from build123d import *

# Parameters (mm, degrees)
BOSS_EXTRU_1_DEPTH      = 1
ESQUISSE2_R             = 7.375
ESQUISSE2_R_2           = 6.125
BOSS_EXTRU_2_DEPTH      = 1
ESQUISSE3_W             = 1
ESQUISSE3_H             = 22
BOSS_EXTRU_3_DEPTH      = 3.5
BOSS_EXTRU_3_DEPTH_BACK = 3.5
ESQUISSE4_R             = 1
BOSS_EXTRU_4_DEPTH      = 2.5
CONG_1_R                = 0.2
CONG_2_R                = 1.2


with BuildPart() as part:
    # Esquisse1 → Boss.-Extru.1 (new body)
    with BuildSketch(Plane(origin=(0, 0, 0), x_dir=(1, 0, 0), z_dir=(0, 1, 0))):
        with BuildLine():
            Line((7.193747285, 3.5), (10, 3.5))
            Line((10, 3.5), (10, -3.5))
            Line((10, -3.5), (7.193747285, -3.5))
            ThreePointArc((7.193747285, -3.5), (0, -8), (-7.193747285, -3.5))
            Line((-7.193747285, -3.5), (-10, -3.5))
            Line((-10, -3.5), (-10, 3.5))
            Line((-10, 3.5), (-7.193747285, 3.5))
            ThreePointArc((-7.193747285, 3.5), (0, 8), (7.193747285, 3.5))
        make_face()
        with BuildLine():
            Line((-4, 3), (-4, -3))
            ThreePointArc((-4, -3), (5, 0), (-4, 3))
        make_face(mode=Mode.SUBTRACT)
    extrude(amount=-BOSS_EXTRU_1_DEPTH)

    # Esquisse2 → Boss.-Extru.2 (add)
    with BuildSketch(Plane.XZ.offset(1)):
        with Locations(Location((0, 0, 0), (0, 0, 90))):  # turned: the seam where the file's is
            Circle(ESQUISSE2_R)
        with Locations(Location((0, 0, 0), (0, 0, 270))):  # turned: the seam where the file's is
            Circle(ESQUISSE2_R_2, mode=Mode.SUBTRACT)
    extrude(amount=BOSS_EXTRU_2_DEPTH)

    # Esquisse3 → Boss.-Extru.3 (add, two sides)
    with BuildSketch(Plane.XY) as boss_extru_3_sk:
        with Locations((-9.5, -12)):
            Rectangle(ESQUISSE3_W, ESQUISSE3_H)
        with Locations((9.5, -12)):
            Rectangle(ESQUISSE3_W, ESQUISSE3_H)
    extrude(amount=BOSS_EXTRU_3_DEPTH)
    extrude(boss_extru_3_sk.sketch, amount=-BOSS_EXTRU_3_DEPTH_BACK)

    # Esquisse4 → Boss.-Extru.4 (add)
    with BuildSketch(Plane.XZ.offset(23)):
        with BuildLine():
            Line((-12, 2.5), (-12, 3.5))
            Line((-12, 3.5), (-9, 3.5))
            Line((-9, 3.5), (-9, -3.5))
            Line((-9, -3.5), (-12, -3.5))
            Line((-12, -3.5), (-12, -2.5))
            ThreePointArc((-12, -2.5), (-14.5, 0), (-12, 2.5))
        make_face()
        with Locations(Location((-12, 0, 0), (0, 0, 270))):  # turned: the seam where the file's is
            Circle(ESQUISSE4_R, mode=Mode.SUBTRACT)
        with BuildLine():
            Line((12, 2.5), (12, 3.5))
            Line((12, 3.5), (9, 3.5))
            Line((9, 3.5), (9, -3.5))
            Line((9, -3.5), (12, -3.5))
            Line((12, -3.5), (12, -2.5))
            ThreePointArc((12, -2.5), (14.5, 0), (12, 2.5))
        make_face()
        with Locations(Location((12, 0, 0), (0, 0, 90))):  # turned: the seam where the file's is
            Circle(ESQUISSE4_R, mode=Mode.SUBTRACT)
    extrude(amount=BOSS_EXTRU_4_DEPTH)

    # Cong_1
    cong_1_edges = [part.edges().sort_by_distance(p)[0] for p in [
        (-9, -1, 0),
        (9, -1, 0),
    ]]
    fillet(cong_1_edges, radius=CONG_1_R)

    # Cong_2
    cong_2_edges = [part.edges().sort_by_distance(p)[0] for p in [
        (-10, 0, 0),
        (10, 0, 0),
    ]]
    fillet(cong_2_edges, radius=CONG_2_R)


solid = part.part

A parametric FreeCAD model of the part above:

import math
import FreeCAD as App
import Part
import Sketcher

V = App.Vector
Q = App.Units.Quantity


def edges_at(feature, points):
    """Names of the edges that pass closest to the given points."""
    edges = feature.Shape.Edges
    near = lambda p: min(range(len(edges)), key=lambda i: edges[i].distToShape(Part.Vertex(*p))[0])
    return sorted({f"Edge{near(p) + 1}" for p in points})

doc = App.newDocument("Part")
params = doc.addObject("Spreadsheet::Sheet", "Params")
for row, (alias, value) in enumerate([
    ("sketch1_radius", "8 mm"),
    ("sketch1_radius2", "5 mm"),
    ("sketch1_height", "7 mm"),
    ("sketch1_height2", "6 mm"),
    ("pad1_length", "1 mm"),
    ("sketch2_diameter", "14.75 mm"),
    ("sketch2_diameter2", "12.25 mm"),
    ("pad2_length", "1 mm"),
    ("sketch3_width", "1 mm"),
    ("sketch3_height", "22 mm"),
    ("pad3_length", "3.5 mm"),
    ("pad3_length2", "3.5 mm"),
    ("sketch4_diameter", "2 mm"),
    ("sketch4_radius", "2.5 mm"),
    ("sketch4_width", "3 mm"),
    ("sketch4_height", "1 mm"),
    ("pad4_length", "2.5 mm"),
    ("fillet_radius", "0.2 mm"),
    ("fillet2_radius", "1.2 mm"),
], start=1):
    params.set(f"A{row}", alias)
    params.set(f"B{row}", "=" + value)
    params.setAlias(f"B{row}", alias)

body = doc.addObject("PartDesign::Body", "Body")

# Sketch on XZ plane
sketch1 = doc.addObject("Sketcher::SketchObject", "Sketch")
body.addObject(sketch1)
sketch1.AttachmentSupport = (doc.XZ_Plane, [""])
sketch1.MapMode = "FlatFace"
sketch1.addGeometry(Part.LineSegment(V(10, -3.5, 0), V(7.2, -3.5, 0)), False)
sketch1.addGeometry(Part.ArcOfCircle(Part.Circle(V(0, 0, 0), V(0, 0, 1), 8), math.radians(-154), math.radians(-26)), False)
sketch1.addGeometry(Part.LineSegment(V(-7.2, -3.5, 0), V(-10, -3.5, 0)), False)
sketch1.addGeometry(Part.LineSegment(V(-10, -3.5, 0), V(-10, 3.5, 0)), False)
sketch1.addGeometry(Part.LineSegment(V(-10, 3.5, 0), V(-7.2, 3.5, 0)), False)
sketch1.addGeometry(Part.ArcOfCircle(Part.Circle(V(0, 0, 0), V(0, 0, 1), 8), math.radians(26), math.radians(154)), False)
sketch1.addGeometry(Part.LineSegment(V(7.2, 3.5, 0), V(10, 3.5, 0)), False)
sketch1.addGeometry(Part.LineSegment(V(10, 3.5, 0), V(10, -3.5, 0)), False)
sketch1.addGeometry(Part.ArcOfCircle(Part.Circle(V(0, 0, 0), V(0, 0, 1), 5), math.radians(-143), math.radians(143)), False)
sketch1.addGeometry(Part.LineSegment(V(-4, 3, 0), V(-4, -3, 0)), False)
sketch1.addConstraint(Sketcher.Constraint("Coincident", 0, 2, 1, 2))
sketch1.addConstraint(Sketcher.Constraint("Coincident", 1, 1, 2, 1))
sketch1.addConstraint(Sketcher.Constraint("Coincident", 2, 2, 3, 1))
sketch1.addConstraint(Sketcher.Constraint("Coincident", 3, 2, 4, 1))
sketch1.addConstraint(Sketcher.Constraint("Coincident", 4, 2, 5, 2))
sketch1.addConstraint(Sketcher.Constraint("Coincident", 5, 1, 6, 1))
sketch1.addConstraint(Sketcher.Constraint("Coincident", 6, 2, 7, 1))
sketch1.addConstraint(Sketcher.Constraint("Coincident", 7, 2, 0, 1))
sketch1.addConstraint(Sketcher.Constraint("Coincident", 8, 1, 9, 2))
sketch1.addConstraint(Sketcher.Constraint("Coincident", 9, 1, 8, 2))
sketch1.addConstraint(Sketcher.Constraint("Horizontal", 0))
sketch1.addConstraint(Sketcher.Constraint("Horizontal", 2))
sketch1.addConstraint(Sketcher.Constraint("Vertical", 3))
sketch1.addConstraint(Sketcher.Constraint("Horizontal", 4))
sketch1.addConstraint(Sketcher.Constraint("Horizontal", 6))
sketch1.addConstraint(Sketcher.Constraint("Vertical", 7))
sketch1.addConstraint(Sketcher.Constraint("Vertical", 9))
sketch1.addConstraint(Sketcher.Constraint("Coincident", 1, 3, -1, 1))
sketch1.addConstraint(Sketcher.Constraint("Coincident", 5, 3, -1, 1))
sketch1.addConstraint(Sketcher.Constraint("Coincident", 8, 3, -1, 1))
sketch1.addConstraint(Sketcher.Constraint("Equal", 1, 5))
sketch1.addConstraint(Sketcher.Constraint("Symmetric", 2, 2, 6, 2, -1, 1))
sketch1.addConstraint(Sketcher.Constraint("Horizontal", 0, 2, 1, 1))
sketch1.addConstraint(Sketcher.Constraint("Horizontal", 4, 2, 5, 1))
sketch1.addConstraint(Sketcher.Constraint("Radius", 1, Q("8 mm")))
sketch1.addConstraint(Sketcher.Constraint("Radius", 8, Q("5 mm")))
sketch1.addConstraint(Sketcher.Constraint("DistanceY", 3, 1, 3, 2, Q("7 mm")))
sketch1.addConstraint(Sketcher.Constraint("DistanceY", 9, 2, 9, 1, Q("6 mm")))
sketch1.addConstraint(Sketcher.Constraint("DistanceX", 2, 2, -1, 1, Q("10 mm")))
sketch1.setExpression("Constraints[24]", "Params.sketch1_radius")
sketch1.setExpression("Constraints[25]", "Params.sketch1_radius2")
sketch1.setExpression("Constraints[26]", "Params.sketch1_height")
sketch1.setExpression("Constraints[27]", "Params.sketch1_height2")
pad1 = doc.addObject("PartDesign::Pad", "Pad")
body.addObject(pad1)
pad1.Profile = sketch1
pad1.setExpression("Length", "Params.pad1_length")

# Sketch on XZ plane
sketch2 = doc.addObject("Sketcher::SketchObject", "Sketch001")
body.addObject(sketch2)
sketch2.AttachmentSupport = (doc.XZ_Plane, [""])
sketch2.MapMode = "FlatFace"
sketch2.AttachmentOffset = App.Placement(V(0, 0, 1), App.Rotation())
sketch2.addGeometry(Part.Circle(V(0, 0, 0), V(0, 0, 1), 7), False)
sketch2.addGeometry(Part.Circle(V(0, 0, 0), V(0, 0, 1), 6), False)
sketch2.addConstraint(Sketcher.Constraint("Coincident", 0, 3, -1, 1))
sketch2.addConstraint(Sketcher.Constraint("Coincident", 1, 3, -1, 1))
sketch2.addConstraint(Sketcher.Constraint("Diameter", 0, Q("14.75 mm")))
sketch2.addConstraint(Sketcher.Constraint("Diameter", 1, Q("12.25 mm")))
sketch2.setExpression("Constraints[2]", "Params.sketch2_diameter")
sketch2.setExpression("Constraints[3]", "Params.sketch2_diameter2")
pad2 = doc.addObject("PartDesign::Pad", "Pad001")
body.addObject(pad2)
pad2.Profile = sketch2
pad2.setExpression("Length", "Params.pad2_length")

# Sketch on XY plane
sketch3 = doc.addObject("Sketcher::SketchObject", "Sketch002")
body.addObject(sketch3)
sketch3.AttachmentSupport = (doc.XY_Plane, [""])
sketch3.MapMode = "FlatFace"
sketch3.addGeometry(Part.LineSegment(V(-10, -1, 0), V(-10, -23, 0)), False)
sketch3.addGeometry(Part.LineSegment(V(-10, -23, 0), V(-9, -23, 0)), False)
sketch3.addGeometry(Part.LineSegment(V(-9, -23, 0), V(-9, -1, 0)), False)
sketch3.addGeometry(Part.LineSegment(V(-9, -1, 0), V(-10, -1, 0)), False)
sketch3.addGeometry(Part.LineSegment(V(9, -1, 0), V(9, -23, 0)), False)
sketch3.addGeometry(Part.LineSegment(V(9, -23, 0), V(10, -23, 0)), False)
sketch3.addGeometry(Part.LineSegment(V(10, -23, 0), V(10, -1, 0)), False)
sketch3.addGeometry(Part.LineSegment(V(10, -1, 0), V(9, -1, 0)), False)
sketch3.addConstraint(Sketcher.Constraint("Coincident", 0, 2, 1, 1))
sketch3.addConstraint(Sketcher.Constraint("Coincident", 1, 2, 2, 1))
sketch3.addConstraint(Sketcher.Constraint("Coincident", 2, 2, 3, 1))
sketch3.addConstraint(Sketcher.Constraint("Coincident", 3, 2, 0, 1))
sketch3.addConstraint(Sketcher.Constraint("Coincident", 4, 2, 5, 1))
sketch3.addConstraint(Sketcher.Constraint("Coincident", 5, 2, 6, 1))
sketch3.addConstraint(Sketcher.Constraint("Coincident", 6, 2, 7, 1))
sketch3.addConstraint(Sketcher.Constraint("Coincident", 7, 2, 4, 1))
sketch3.addConstraint(Sketcher.Constraint("Vertical", 0))
sketch3.addConstraint(Sketcher.Constraint("Horizontal", 1))
sketch3.addConstraint(Sketcher.Constraint("Vertical", 2))
sketch3.addConstraint(Sketcher.Constraint("Horizontal", 3))
sketch3.addConstraint(Sketcher.Constraint("Vertical", 4))
sketch3.addConstraint(Sketcher.Constraint("Horizontal", 5))
sketch3.addConstraint(Sketcher.Constraint("Vertical", 6))
sketch3.addConstraint(Sketcher.Constraint("Horizontal", 7))
sketch3.addConstraint(Sketcher.Constraint("Symmetric", 1, 2, 4, 2, -2))
sketch3.addConstraint(Sketcher.Constraint("Symmetric", 3, 2, 6, 2, -2))
sketch3.addConstraint(Sketcher.Constraint("DistanceX", 1, 1, 1, 2, Q("1 mm")))
sketch3.addConstraint(Sketcher.Constraint("DistanceY", 0, 2, 0, 1, Q("22 mm")))
sketch3.addConstraint(Sketcher.Constraint("DistanceX", 0, 2, -1, 1, Q("10 mm")))
sketch3.addConstraint(Sketcher.Constraint("DistanceY", 0, 2, -1, 1, Q("23 mm")))
sketch3.setExpression("Constraints[18]", "Params.sketch3_width")
sketch3.setExpression("Constraints[19]", "Params.sketch3_height")
pad3 = doc.addObject("PartDesign::Pad", "Pad002")
body.addObject(pad3)
pad3.Profile = sketch3
pad3.Type = "TwoLengths"
pad3.setExpression("Length", "Params.pad3_length")
pad3.setExpression("Length2", "Params.pad3_length2")

# Sketch on XZ plane
sketch4 = doc.addObject("Sketcher::SketchObject", "Sketch003")
body.addObject(sketch4)
sketch4.AttachmentSupport = (doc.XZ_Plane, [""])
sketch4.MapMode = "FlatFace"
sketch4.AttachmentOffset = App.Placement(V(0, 0, 23), App.Rotation())
sketch4.addGeometry(Part.LineSegment(V(-12, 3.5, 0), V(-12, 2.5, 0)), False)
sketch4.addGeometry(Part.ArcOfCircle(Part.Circle(V(-12, 0, 0), V(0, 0, 1), 2.5), math.radians(90), math.radians(270)), False)
sketch4.addGeometry(Part.LineSegment(V(-12, -2.5, 0), V(-12, -3.5, 0)), False)
sketch4.addGeometry(Part.LineSegment(V(-12, -3.5, 0), V(-9, -3.5, 0)), False)
sketch4.addGeometry(Part.LineSegment(V(-9, -3.5, 0), V(-9, 3.5, 0)), False)
sketch4.addGeometry(Part.LineSegment(V(-9, 3.5, 0), V(-12, 3.5, 0)), False)
sketch4.addGeometry(Part.Circle(V(-12, 0, 0), V(0, 0, 1), 1), False)
sketch4.addGeometry(Part.LineSegment(V(12, 2.5, 0), V(12, 3.5, 0)), False)
sketch4.addGeometry(Part.LineSegment(V(12, 3.5, 0), V(9, 3.5, 0)), False)
sketch4.addGeometry(Part.LineSegment(V(9, 3.5, 0), V(9, -3.5, 0)), False)
sketch4.addGeometry(Part.LineSegment(V(9, -3.5, 0), V(12, -3.5, 0)), False)
sketch4.addGeometry(Part.LineSegment(V(12, -3.5, 0), V(12, -2.5, 0)), False)
sketch4.addGeometry(Part.ArcOfCircle(Part.Circle(V(12, 0, 0), V(0, 0, 1), 2.5), math.radians(-90), math.radians(90)), False)
sketch4.addGeometry(Part.Circle(V(12, 0, 0), V(0, 0, 1), 1), False)
sketch4.addConstraint(Sketcher.Constraint("Coincident", 0, 2, 1, 1))
sketch4.addConstraint(Sketcher.Constraint("Coincident", 1, 2, 2, 1))
sketch4.addConstraint(Sketcher.Constraint("Coincident", 2, 2, 3, 1))
sketch4.addConstraint(Sketcher.Constraint("Coincident", 3, 2, 4, 1))
sketch4.addConstraint(Sketcher.Constraint("Coincident", 4, 2, 5, 1))
sketch4.addConstraint(Sketcher.Constraint("Coincident", 5, 2, 0, 1))
sketch4.addConstraint(Sketcher.Constraint("Coincident", 7, 2, 8, 1))
sketch4.addConstraint(Sketcher.Constraint("Coincident", 8, 2, 9, 1))
sketch4.addConstraint(Sketcher.Constraint("Coincident", 9, 2, 10, 1))
sketch4.addConstraint(Sketcher.Constraint("Coincident", 10, 2, 11, 1))
sketch4.addConstraint(Sketcher.Constraint("Coincident", 11, 2, 12, 1))
sketch4.addConstraint(Sketcher.Constraint("Coincident", 12, 2, 7, 1))
sketch4.addConstraint(Sketcher.Constraint("Vertical", 0))
sketch4.addConstraint(Sketcher.Constraint("Vertical", 2))
sketch4.addConstraint(Sketcher.Constraint("Horizontal", 3))
sketch4.addConstraint(Sketcher.Constraint("Vertical", 4))
sketch4.addConstraint(Sketcher.Constraint("Horizontal", 5))
sketch4.addConstraint(Sketcher.Constraint("Vertical", 7))
sketch4.addConstraint(Sketcher.Constraint("Horizontal", 8))
sketch4.addConstraint(Sketcher.Constraint("Vertical", 9))
sketch4.addConstraint(Sketcher.Constraint("Horizontal", 10))
sketch4.addConstraint(Sketcher.Constraint("Vertical", 11))
sketch4.addConstraint(Sketcher.Constraint("Coincident", 6, 3, 1, 3))
sketch4.addConstraint(Sketcher.Constraint("Coincident", 13, 3, 12, 3))
sketch4.addConstraint(Sketcher.Constraint("Equal", 1, 12))
sketch4.addConstraint(Sketcher.Constraint("Equal", 6, 13))
sketch4.addConstraint(Sketcher.Constraint("Symmetric", 1, 3, 12, 3, -1, 1))
sketch4.addConstraint(Sketcher.Constraint("Symmetric", 2, 2, 7, 2, -1, 1))
sketch4.addConstraint(Sketcher.Constraint("Symmetric", 4, 2, 9, 2, -1, 1))
sketch4.addConstraint(Sketcher.Constraint("Symmetric", 5, 2, 7, 2, -2))
sketch4.addConstraint(Sketcher.Constraint("Symmetric", 1, 2, 11, 2, -2))
sketch4.addConstraint(Sketcher.Constraint("Vertical", 6, 3, 0, 2))
sketch4.addConstraint(Sketcher.Constraint("Diameter", 6, Q("2 mm")))
sketch4.addConstraint(Sketcher.Constraint("Radius", 1, Q("2.5 mm")))
sketch4.addConstraint(Sketcher.Constraint("DistanceX", 3, 1, 3, 2, Q("3 mm")))
sketch4.addConstraint(Sketcher.Constraint("DistanceY", 0, 2, 0, 1, Q("1 mm")))
sketch4.addConstraint(Sketcher.Constraint("DistanceX", 1, 3, -1, 1, Q("12 mm")))
sketch4.setExpression("Constraints[32]", "Params.sketch4_diameter")
sketch4.setExpression("Constraints[33]", "Params.sketch4_radius")
sketch4.setExpression("Constraints[34]", "Params.sketch4_width")
sketch4.setExpression("Constraints[35]", "Params.sketch4_height")
pad4 = doc.addObject("PartDesign::Pad", "Pad003")
body.addObject(pad4)
pad4.Profile = sketch4
pad4.setExpression("Length", "Params.pad4_length")
doc.recompute()

fillet = doc.addObject("PartDesign::Fillet", "Fillet")
body.addObject(fillet)
fillet.Base = (pad4, edges_at(pad4, [(-9, -1, 0), (9, -1, 0)]))
fillet.setExpression("Radius", "Params.fillet_radius")
doc.recompute()

fillet2 = doc.addObject("PartDesign::Fillet", "Fillet001")
body.addObject(fillet2)
fillet2.Base = (fillet, edges_at(fillet, [(-10, 0, 0), (10, 0, 0)]))
fillet2.setExpression("Radius", "Params.fillet2_radius")

doc.recompute()
